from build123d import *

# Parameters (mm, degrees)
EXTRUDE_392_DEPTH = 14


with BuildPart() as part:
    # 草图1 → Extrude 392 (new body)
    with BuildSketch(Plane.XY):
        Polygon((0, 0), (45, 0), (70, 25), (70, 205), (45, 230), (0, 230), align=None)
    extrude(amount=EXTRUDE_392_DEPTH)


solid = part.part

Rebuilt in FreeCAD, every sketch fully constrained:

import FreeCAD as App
import Part
import Sketcher

V = App.Vector

doc = App.newDocument("Part")
body = doc.addObject("PartDesign::Body", "Body")

# Sketch on XY plane
sketch1 = body.newObject("Sketcher::SketchObject", "Sketch")
sketch1.AttachmentSupport = (doc.getObject("XY_Plane"), [""])
sketch1.MapMode = "FlatFace"
sketch1.addGeometry(Part.LineSegment(V(0, 0, 0), V(45, 0, 0)), False)
sketch1.addGeometry(Part.LineSegment(V(45, 0, 0), V(70, 25, 0)), False)
sketch1.addGeometry(Part.LineSegment(V(70, 25, 0), V(70, 205, 0)), False)
sketch1.addGeometry(Part.LineSegment(V(70, 205, 0), V(45, 230, 0)), False)
sketch1.addGeometry(Part.LineSegment(V(45, 230, 0), V(0, 230, 0)), False)
sketch1.addGeometry(Part.LineSegment(V(0, 230, 0), V(0, 0, 0)), False)
sketch1.addConstraint(Sketcher.Constraint("Coincident", 0, 2, 1, 1))
sketch1.addConstraint(Sketcher.Constraint("Coincident", 1, 2, 2, 1))
sketch1.addConstraint(Sketcher.Constraint("Coincident", 2, 2, 3, 1))
sketch1.addConstraint(Sketcher.Constraint("Coincident", 3, 2, 4, 1))
sketch1.addConstraint(Sketcher.Constraint("Coincident", 4, 2, 5, 1))
sketch1.addConstraint(Sketcher.Constraint("Coincident", 5, 2, 0, 1))
sketch1.addConstraint(Sketcher.Constraint("Horizontal", 0))
sketch1.addConstraint(Sketcher.Constraint("Vertical", 2))
sketch1.addConstraint(Sketcher.Constraint("Horizontal", 4))
sketch1.addConstraint(Sketcher.Constraint("Vertical", 5))
sketch1.addConstraint(Sketcher.Constraint("Coincident", 5, 2, -1, 1))
sketch1.addConstraint(Sketcher.Constraint("Perpendicular", 1, 3))
sketch1.addConstraint(Sketcher.Constraint("Vertical", 0, 2, 3, 2))
sketch1.addConstraint(Sketcher.Constraint("Equal", 1, 3))
sketch1.addConstraint(Sketcher.Constraint("DistanceX", 0, 1, 0, 2, 45.0))
sketch1.addConstraint(Sketcher.Constraint("DistanceY", 2, 1, 2, 2, 180.0))
sketch1.addConstraint(Sketcher.Constraint("DistanceY", 5, 2, 5, 1, 230.0))
pad1 = body.newObject("PartDesign::Pad", "Pad")
pad1.Profile = sketch1
pad1.Length = 14

doc.recompute()
